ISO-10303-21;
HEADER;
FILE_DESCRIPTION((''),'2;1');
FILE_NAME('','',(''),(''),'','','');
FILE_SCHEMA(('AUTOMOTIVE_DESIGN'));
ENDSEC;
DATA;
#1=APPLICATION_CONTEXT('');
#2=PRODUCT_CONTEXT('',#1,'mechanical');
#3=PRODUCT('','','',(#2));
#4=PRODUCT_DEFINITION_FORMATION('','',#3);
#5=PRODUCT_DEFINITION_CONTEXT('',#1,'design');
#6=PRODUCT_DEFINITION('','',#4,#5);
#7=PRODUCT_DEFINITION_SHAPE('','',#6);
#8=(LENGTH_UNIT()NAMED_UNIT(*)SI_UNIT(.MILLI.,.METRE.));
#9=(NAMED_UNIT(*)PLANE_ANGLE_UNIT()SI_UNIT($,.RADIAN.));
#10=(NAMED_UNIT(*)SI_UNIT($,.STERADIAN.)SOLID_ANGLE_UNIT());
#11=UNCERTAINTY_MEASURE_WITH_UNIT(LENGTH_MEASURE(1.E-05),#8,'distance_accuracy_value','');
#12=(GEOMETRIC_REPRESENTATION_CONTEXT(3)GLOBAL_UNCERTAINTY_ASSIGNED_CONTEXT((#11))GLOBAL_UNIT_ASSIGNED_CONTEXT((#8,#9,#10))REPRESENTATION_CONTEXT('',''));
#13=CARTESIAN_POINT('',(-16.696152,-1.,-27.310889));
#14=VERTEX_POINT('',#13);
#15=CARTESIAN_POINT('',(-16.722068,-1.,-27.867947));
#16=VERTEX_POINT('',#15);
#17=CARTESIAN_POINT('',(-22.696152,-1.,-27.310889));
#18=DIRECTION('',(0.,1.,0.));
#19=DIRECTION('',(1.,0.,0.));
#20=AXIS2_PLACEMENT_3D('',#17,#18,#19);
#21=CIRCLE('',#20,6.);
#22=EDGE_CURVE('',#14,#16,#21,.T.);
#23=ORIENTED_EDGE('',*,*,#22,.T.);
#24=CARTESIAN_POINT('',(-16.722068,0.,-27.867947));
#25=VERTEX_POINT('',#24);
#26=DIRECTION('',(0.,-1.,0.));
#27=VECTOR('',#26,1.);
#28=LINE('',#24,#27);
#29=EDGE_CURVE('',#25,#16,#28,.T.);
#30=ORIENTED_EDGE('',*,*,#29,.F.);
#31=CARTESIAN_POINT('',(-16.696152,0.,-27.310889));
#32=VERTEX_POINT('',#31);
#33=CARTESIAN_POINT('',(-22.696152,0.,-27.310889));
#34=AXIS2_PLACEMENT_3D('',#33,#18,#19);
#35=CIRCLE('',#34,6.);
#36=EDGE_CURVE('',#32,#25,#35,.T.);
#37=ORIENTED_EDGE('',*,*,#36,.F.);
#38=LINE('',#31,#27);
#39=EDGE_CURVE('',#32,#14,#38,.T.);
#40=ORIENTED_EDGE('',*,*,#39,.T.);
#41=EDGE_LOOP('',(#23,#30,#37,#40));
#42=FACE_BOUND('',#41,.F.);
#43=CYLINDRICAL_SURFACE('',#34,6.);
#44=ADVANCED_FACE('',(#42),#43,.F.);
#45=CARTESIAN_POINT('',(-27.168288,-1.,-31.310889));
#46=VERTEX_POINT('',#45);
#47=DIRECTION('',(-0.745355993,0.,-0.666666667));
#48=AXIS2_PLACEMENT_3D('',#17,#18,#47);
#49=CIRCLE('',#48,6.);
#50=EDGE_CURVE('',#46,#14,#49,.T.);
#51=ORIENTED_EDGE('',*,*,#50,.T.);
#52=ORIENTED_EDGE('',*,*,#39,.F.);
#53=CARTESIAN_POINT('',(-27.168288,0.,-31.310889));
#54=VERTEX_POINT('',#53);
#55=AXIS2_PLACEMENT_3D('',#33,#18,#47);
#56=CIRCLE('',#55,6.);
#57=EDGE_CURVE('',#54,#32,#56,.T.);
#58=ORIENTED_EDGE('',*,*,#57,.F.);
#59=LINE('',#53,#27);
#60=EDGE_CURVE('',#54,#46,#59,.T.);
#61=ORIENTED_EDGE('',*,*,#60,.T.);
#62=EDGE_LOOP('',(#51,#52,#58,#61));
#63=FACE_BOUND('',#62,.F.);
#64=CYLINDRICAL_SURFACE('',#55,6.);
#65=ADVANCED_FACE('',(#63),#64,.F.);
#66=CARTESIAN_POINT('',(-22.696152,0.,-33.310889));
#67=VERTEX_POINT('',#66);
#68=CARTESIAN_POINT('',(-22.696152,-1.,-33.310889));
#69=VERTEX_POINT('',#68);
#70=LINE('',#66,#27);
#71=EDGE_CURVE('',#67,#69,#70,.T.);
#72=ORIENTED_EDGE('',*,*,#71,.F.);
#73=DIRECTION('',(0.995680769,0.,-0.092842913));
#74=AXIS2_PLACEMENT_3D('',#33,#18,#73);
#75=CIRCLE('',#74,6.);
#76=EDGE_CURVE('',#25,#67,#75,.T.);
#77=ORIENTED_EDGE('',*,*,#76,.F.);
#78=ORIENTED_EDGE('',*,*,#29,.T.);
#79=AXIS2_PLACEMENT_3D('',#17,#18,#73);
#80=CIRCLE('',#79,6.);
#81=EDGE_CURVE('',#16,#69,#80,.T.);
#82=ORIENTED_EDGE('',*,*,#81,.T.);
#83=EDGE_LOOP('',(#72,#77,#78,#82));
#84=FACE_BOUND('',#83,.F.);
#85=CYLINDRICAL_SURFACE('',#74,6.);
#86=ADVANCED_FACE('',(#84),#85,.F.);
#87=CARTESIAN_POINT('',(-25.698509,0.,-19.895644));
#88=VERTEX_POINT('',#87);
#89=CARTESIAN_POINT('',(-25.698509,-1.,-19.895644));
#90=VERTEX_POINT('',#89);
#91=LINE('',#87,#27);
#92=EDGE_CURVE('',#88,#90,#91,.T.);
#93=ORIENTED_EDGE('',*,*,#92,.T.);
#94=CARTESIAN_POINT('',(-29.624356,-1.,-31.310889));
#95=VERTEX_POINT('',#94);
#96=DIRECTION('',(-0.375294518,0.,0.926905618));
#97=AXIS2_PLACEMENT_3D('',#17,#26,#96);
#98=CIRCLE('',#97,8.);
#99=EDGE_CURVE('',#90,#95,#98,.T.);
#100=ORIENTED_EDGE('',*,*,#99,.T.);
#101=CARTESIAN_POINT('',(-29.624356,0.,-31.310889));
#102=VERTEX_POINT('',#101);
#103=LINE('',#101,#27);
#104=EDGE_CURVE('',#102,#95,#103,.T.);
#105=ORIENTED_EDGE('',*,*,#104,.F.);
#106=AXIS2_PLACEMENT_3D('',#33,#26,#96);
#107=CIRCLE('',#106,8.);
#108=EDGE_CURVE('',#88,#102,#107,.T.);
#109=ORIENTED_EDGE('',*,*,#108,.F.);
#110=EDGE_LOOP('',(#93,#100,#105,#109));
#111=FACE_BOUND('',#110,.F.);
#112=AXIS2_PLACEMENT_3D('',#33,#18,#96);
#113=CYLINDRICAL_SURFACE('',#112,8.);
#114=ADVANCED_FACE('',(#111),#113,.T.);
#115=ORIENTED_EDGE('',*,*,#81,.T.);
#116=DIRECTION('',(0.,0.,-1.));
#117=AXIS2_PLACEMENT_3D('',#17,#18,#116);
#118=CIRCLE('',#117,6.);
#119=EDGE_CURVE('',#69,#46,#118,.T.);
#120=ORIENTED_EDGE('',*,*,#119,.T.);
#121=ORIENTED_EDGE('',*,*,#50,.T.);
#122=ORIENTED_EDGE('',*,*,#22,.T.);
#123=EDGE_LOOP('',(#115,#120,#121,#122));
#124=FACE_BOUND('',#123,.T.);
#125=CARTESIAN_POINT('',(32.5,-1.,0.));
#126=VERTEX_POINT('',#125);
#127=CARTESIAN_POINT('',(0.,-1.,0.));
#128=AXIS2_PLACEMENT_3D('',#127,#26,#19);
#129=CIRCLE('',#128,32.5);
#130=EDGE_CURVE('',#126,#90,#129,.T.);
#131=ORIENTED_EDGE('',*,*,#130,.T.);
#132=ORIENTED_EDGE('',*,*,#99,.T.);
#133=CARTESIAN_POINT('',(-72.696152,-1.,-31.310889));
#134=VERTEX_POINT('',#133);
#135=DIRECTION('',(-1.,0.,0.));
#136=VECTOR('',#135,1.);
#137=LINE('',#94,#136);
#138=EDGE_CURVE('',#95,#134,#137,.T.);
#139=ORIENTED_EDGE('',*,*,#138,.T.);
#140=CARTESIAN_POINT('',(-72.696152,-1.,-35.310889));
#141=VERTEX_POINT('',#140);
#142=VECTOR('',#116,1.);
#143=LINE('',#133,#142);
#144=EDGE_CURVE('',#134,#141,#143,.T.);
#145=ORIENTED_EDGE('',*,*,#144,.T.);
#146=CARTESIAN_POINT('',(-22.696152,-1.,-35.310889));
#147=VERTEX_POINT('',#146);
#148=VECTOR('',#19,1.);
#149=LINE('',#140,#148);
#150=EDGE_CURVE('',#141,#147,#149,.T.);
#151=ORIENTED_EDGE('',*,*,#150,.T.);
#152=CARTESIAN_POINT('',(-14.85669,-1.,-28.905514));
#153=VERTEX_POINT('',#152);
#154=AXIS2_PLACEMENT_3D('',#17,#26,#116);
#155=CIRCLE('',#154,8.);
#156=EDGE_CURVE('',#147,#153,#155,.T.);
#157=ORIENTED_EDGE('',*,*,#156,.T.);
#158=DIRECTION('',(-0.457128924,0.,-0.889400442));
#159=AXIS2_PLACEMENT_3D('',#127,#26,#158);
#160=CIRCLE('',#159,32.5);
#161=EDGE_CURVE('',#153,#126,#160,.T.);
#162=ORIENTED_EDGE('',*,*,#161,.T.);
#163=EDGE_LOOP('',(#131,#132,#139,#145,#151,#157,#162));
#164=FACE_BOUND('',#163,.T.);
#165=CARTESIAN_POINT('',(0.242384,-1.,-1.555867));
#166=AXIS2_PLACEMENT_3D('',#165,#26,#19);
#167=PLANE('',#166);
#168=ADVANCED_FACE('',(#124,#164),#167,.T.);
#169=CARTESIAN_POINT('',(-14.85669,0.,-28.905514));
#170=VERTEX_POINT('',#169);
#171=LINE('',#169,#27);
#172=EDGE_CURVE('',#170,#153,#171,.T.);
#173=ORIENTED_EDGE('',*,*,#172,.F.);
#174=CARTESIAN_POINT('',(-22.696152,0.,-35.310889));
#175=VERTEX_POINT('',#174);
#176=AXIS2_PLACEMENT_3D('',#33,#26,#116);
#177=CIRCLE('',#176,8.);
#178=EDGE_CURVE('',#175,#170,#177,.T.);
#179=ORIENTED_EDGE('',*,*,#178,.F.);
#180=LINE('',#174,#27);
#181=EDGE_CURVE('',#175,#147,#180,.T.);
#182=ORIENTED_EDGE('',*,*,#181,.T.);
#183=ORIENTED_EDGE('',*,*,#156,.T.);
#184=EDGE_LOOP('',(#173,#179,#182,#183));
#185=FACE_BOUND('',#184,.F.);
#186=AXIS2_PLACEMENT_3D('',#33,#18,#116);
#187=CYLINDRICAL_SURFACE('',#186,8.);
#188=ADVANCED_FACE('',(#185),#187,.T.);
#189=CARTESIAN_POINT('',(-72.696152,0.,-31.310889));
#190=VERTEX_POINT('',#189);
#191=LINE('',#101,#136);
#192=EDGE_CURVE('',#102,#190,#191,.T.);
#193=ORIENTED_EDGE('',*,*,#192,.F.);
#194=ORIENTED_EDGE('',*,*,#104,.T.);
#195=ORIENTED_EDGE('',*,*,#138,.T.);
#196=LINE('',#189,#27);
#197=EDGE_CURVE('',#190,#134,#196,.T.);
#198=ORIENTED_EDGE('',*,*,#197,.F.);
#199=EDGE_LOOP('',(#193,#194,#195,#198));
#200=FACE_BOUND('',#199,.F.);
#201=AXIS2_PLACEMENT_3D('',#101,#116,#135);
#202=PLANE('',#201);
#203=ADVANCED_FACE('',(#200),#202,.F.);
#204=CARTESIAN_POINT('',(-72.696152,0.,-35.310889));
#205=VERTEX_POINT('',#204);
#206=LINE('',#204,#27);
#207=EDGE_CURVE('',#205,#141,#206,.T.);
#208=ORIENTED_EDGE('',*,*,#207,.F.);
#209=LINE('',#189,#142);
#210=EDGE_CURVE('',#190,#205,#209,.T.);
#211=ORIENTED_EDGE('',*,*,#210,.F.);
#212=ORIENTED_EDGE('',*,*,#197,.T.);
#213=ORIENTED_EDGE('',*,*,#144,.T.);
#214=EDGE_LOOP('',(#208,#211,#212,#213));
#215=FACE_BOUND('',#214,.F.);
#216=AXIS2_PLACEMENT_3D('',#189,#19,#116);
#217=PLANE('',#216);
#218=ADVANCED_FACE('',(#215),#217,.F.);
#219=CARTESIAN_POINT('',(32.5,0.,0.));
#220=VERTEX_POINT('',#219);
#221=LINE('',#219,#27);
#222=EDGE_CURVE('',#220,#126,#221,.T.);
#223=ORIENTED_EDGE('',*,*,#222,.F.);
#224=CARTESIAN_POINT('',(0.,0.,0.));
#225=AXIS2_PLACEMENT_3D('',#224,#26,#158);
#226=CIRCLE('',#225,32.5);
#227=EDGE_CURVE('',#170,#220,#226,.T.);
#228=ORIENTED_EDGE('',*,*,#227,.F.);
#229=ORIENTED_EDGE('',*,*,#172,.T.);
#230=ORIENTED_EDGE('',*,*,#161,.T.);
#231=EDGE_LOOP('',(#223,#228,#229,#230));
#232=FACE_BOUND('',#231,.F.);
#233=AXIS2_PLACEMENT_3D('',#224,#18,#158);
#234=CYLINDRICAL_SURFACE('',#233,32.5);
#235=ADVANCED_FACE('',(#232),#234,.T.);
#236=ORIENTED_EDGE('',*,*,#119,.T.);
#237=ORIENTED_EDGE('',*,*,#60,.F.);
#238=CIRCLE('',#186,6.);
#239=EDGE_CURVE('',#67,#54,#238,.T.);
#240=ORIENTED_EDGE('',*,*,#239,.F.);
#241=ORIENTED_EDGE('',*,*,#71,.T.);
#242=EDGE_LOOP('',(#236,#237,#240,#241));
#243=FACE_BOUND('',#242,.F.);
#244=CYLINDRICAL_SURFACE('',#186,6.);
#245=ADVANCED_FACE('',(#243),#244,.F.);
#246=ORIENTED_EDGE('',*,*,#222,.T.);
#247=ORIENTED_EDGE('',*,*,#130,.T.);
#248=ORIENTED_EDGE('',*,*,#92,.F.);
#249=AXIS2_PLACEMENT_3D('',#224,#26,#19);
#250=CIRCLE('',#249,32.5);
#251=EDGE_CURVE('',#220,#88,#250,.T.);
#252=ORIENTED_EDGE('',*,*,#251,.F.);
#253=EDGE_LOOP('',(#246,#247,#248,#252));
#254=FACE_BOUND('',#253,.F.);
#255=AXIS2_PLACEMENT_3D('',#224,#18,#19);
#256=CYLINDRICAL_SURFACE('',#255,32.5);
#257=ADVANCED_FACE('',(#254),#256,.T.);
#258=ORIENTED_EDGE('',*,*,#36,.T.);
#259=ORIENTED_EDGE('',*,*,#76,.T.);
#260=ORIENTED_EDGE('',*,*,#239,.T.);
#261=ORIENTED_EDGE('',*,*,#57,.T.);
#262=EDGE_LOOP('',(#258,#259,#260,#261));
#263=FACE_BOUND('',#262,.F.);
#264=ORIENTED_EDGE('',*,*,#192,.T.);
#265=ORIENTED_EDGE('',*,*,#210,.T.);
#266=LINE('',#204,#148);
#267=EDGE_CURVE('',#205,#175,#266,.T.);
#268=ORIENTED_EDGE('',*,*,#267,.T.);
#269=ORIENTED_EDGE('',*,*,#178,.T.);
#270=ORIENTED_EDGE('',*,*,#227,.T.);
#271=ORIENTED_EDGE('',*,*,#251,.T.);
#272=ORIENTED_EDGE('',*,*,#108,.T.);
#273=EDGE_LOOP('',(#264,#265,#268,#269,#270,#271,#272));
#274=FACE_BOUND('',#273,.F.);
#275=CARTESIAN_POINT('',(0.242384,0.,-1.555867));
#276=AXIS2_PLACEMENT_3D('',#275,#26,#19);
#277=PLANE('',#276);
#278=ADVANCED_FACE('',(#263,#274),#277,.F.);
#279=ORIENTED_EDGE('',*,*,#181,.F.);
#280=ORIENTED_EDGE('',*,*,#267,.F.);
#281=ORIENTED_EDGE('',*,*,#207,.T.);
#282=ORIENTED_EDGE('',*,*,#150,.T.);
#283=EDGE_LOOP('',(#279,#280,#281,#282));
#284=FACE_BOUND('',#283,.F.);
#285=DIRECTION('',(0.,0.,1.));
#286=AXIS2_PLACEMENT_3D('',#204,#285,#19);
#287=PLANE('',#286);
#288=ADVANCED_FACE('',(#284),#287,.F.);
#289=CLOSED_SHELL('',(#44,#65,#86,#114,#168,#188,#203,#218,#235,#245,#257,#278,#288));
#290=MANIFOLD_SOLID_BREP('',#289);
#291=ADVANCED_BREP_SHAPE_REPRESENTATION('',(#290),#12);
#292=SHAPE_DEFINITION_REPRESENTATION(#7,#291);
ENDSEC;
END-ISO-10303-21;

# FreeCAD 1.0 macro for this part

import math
import FreeCAD as App
import Part
import Sketcher
Q = App.Units.Quantity

doc = App.newDocument("Part")
body = doc.addObject("PartDesign::Body", "Body")

sketch1 = body.newObject("Sketcher::SketchObject", "Sketch")
sketch1.AttachmentSupport = (doc.getObject("XZ_Plane"), [""])
sketch1.MapMode = "FlatFace"
sketch1.addGeometry(Part.ArcOfCircle(Part.Circle(App.Vector(0, 0, 0), App.Vector(0, 0, 1), 32.5), math.radians(-117), math.radians(0)), False)
sketch1.addGeometry(Part.ArcOfCircle(Part.Circle(App.Vector(0, 0, 0), App.Vector(0, 0, 1), 32.5), math.radians(0), math.radians(218)), False)
sketch1.addGeometry(Part.ArcOfCircle(Part.Circle(App.Vector(-22.7, -27.3, 0), App.Vector(0, 0, 1), 8), math.radians(112), math.radians(210)), False)
sketch1.addGeometry(Part.LineSegment(App.Vector(-29.6, -31.3, 0), App.Vector(-72.7, -31.3, 0)), False)
sketch1.addGeometry(Part.LineSegment(App.Vector(-72.7, -31.3, 0), App.Vector(-72.7, -35.3, 0)), False)
sketch1.addGeometry(Part.LineSegment(App.Vector(-72.7, -35.3, 0), App.Vector(-22.7, -35.3, 0)), False)
sketch1.addGeometry(Part.ArcOfCircle(Part.Circle(App.Vector(-22.7, -27.3, 0), App.Vector(0, 0, 1), 8), math.radians(-90), math.radians(-11)), False)
sketch1.addGeometry(Part.ArcOfCircle(Part.Circle(App.Vector(-22.7, -27.3, 0), App.Vector(0, 0, 1), 6), math.radians(0), math.radians(222)), False)
sketch1.addGeometry(Part.ArcOfCircle(Part.Circle(App.Vector(-22.7, -27.3, 0), App.Vector(0, 0, 1), 6), math.radians(-5.33), math.radians(0)), False)
sketch1.addGeometry(Part.ArcOfCircle(Part.Circle(App.Vector(-22.7, -27.3, 0), App.Vector(0, 0, 1), 6), math.radians(-90), math.radians(-5)), False)
sketch1.addGeometry(Part.ArcOfCircle(Part.Circle(App.Vector(-22.7, -27.3, 0), App.Vector(0, 0, 1), 6), math.radians(-138), math.radians(-90)), False)
sketch1.addConstraint(Sketcher.Constraint("Tangent", 0, 2, 1, 1))
sketch1.addConstraint(Sketcher.Constraint("Coincident", 1, 2, 2, 1))
sketch1.addConstraint(Sketcher.Constraint("Coincident", 2, 2, 3, 1))
sketch1.addConstraint(Sketcher.Constraint("Coincident", 3, 2, 4, 1))
sketch1.addConstraint(Sketcher.Constraint("Coincident", 4, 2, 5, 1))
sketch1.addConstraint(Sketcher.Constraint("Tangent", 5, 2, 6, 1))
sketch1.addConstraint(Sketcher.Constraint("Coincident", 6, 2, 0, 1))
sketch1.addConstraint(Sketcher.Constraint("Tangent", 7, 1, 8, 2))
sketch1.addConstraint(Sketcher.Constraint("Tangent", 8, 1, 9, 2))
sketch1.addConstraint(Sketcher.Constraint("Tangent", 9, 1, 10, 2))
sketch1.addConstraint(Sketcher.Constraint("Tangent", 10, 1, 7, 2))
sketch1.addConstraint(Sketcher.Constraint("Horizontal", 3))
sketch1.addConstraint(Sketcher.Constraint("Vertical", 4))
sketch1.addConstraint(Sketcher.Constraint("Horizontal", 5))
sketch1.addConstraint(Sketcher.Constraint("Coincident", 0, 3, -1, 1))
sketch1.addConstraint(Sketcher.Constraint("Coincident", 6, 3, 2, 3))
sketch1.addConstraint(Sketcher.Constraint("Coincident", 7, 3, 2, 3))
sketch1.addConstraint(Sketcher.Constraint("Equal", 0, 1))
sketch1.addConstraint(Sketcher.Constraint("Equal", 2, 6))
sketch1.addConstraint(Sketcher.Constraint("Equal", 7, 8))
sketch1.addConstraint(Sketcher.Constraint("PointOnObject", 0, 2, -1))
sketch1.addConstraint(Sketcher.Constraint("Horizontal", 10, 3, 7, 1))
sketch1.addConstraint(Sketcher.Constraint("Horizontal", 3, 2, 10, 1))
sketch1.addConstraint(Sketcher.Constraint("Vertical", 5, 2, 9, 1))
sketch1.addConstraint(Sketcher.Constraint("Radius", 2, Q("8 mm")))
sketch1.addConstraint(Sketcher.Constraint("Radius", 7, Q("6 mm")))
sketch1.addConstraint(Sketcher.Constraint("Radius", 0, Q("32.5 mm")))
sketch1.addConstraint(Sketcher.Constraint("DistanceX", 5, 1, 5, 2, Q("50 mm")))
sketch1.addConstraint(Sketcher.Constraint("DistanceY", 4, 2, 4, 1, Q("4 mm")))
sketch1.addConstraint(Sketcher.Constraint("DistanceY", 2, 3, -1, 1, Q("27.310889 mm")))
sketch1.addConstraint(Sketcher.Constraint("DistanceX", 1, 2, -1, 1, Q("25.698509 mm")))
sketch1.addConstraint(Sketcher.Constraint("DistanceX", 8, 1, -1, 1, Q("16.722068 mm")))
pad1 = body.newObject("PartDesign::Pad", "Pad")
pad1.Profile = sketch1
pad1.Length = 1

doc.recompute()
